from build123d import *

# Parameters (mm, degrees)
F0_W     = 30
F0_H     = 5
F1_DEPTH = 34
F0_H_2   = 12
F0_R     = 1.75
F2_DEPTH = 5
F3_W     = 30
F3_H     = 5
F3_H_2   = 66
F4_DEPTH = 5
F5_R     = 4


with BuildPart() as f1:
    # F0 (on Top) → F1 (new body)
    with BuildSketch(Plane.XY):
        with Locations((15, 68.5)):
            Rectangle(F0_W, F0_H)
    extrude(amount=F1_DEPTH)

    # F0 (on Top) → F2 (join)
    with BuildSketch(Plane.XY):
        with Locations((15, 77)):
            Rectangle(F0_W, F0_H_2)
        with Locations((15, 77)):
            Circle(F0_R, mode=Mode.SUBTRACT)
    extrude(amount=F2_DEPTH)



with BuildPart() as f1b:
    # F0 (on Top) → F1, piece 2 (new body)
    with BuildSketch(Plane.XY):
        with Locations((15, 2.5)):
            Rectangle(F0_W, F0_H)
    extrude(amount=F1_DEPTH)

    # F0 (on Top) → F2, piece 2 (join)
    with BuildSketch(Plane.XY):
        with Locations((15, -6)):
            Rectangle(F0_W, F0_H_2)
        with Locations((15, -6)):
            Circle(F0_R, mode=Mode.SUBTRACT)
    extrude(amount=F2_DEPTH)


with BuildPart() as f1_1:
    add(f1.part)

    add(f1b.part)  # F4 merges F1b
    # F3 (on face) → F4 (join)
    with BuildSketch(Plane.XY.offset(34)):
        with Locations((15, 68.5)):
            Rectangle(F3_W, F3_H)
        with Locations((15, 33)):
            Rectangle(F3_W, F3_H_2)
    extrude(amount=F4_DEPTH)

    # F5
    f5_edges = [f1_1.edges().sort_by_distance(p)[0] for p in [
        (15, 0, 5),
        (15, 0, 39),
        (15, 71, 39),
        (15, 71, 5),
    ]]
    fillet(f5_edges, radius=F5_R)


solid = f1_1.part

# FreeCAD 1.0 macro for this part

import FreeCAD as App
import Part
import Sketcher
from FreeCAD import Vector


def edges_at(feature, points):
    """Names of the edges that pass closest to the given points."""
    edges = feature.Shape.Edges
    near = lambda p: min(range(len(edges)), key=lambda i: edges[i].distToShape(Part.Vertex(*p))[0])
    return sorted({f"Edge{near(p) + 1}" for p in points})

doc = App.newDocument("Part")
params = doc.addObject("Spreadsheet::Sheet", "Params")
for row, (alias, value) in enumerate([
    ("sketch1_width", "30 mm"),
    ("sketch1_height", "5 mm"),
    ("pad1_length", "34 mm"),
    ("sketch2_diameter", "3.5 mm"),
    ("sketch2_width", "30 mm"),
    ("sketch2_height", "12 mm"),
    ("pad2_length", "5 mm"),
    ("sketch3_width", "30 mm"),
    ("sketch3_height", "5 mm"),
    ("pad3_length", "34 mm"),
    ("sketch4_diameter", "3.5 mm"),
    ("sketch4_width", "30 mm"),
    ("sketch4_height", "12 mm"),
    ("pad4_length", "5 mm"),
    ("sketch5_width", "30 mm"),
    ("sketch5_height", "71 mm"),
    ("pad5_length", "5 mm"),
    ("fillet_radius", "4 mm"),
], start=1):
    params.set(f"A{row}", alias)
    params.set(f"B{row}", "=" + value)
    params.setAlias(f"B{row}", alias)

body = doc.addObject("PartDesign::Body", "Body")

# Sketch on XY plane
sketch1 = body.newObject("Sketcher::SketchObject", "Sketch")
sketch1.AttachmentSupport = (doc.getObject("XY_Plane"), [""])
sketch1.MapMode = "FlatFace"
sketch1.addGeometry([
    Part.LineSegment(Vector(0, 71, 0), Vector(0, 66, 0)),
    Part.LineSegment(Vector(0, 66, 0), Vector(30, 66, 0)),
    Part.LineSegment(Vector(30, 66, 0), Vector(30, 71, 0)),
    Part.LineSegment(Vector(30, 71, 0), Vector(0, 71, 0)),
], False)
sketch1.addConstraint([
    Sketcher.Constraint("Coincident", 0, 2, 1, 1),
    Sketcher.Constraint("Coincident", 1, 2, 2, 1),
    Sketcher.Constraint("Coincident", 2, 2, 3, 1),
    Sketcher.Constraint("Coincident", 3, 2, 0, 1),
    Sketcher.Constraint("Vertical", 0),
    Sketcher.Constraint("Horizontal", 1),
    Sketcher.Constraint("Vertical", 2),
    Sketcher.Constraint("Horizontal", 3),
    Sketcher.Constraint("PointOnObject", 0, 2, -2),
    Sketcher.Constraint("DistanceX", 1, 1, 1, 2, 30.0),
    Sketcher.Constraint("DistanceY", 0, 2, 0, 1, 5.0),
    Sketcher.Constraint("DistanceY", -1, 1, 0, 2, 66.0),
])
sketch1.setExpression("Constraints[9]", "Params.sketch1_width")
sketch1.setExpression("Constraints[10]", "Params.sketch1_height")
pad1 = body.newObject("PartDesign::Pad", "Pad")
pad1.Profile = sketch1
pad1.setExpression("Length", "Params.pad1_length")

# Sketch on XY plane
sketch2 = body.newObject("Sketcher::SketchObject", "Sketch001")
sketch2.AttachmentSupport = (doc.getObject("XY_Plane"), [""])
sketch2.MapMode = "FlatFace"
sketch2.addGeometry([
    Part.LineSegment(Vector(0, 83, 0), Vector(0, 71, 0)),  # 0
    Part.LineSegment(Vector(0, 71, 0), Vector(30, 71, 0)),  # 1
    Part.LineSegment(Vector(30, 71, 0), Vector(30, 83, 0)),  # 2
    Part.LineSegment(Vector(30, 83, 0), Vector(0, 83, 0)),  # 3
    Part.Circle(Vector(15, 77, 0), Vector(0, 0, 1), 1.75),  # 4
], False)
sketch2.addConstraint([
    Sketcher.Constraint("Coincident", 0, 2, 1, 1),
    Sketcher.Constraint("Coincident", 1, 2, 2, 1),
    Sketcher.Constraint("Coincident", 2, 2, 3, 1),
    Sketcher.Constraint("Coincident", 3, 2, 0, 1),
    Sketcher.Constraint("Vertical", 0),
    Sketcher.Constraint("Horizontal", 1),
    Sketcher.Constraint("Vertical", 2),
    Sketcher.Constraint("Horizontal", 3),
    Sketcher.Constraint("PointOnObject", 0, 2, -2),
    Sketcher.Constraint("Diameter", 4, 3.5),
    Sketcher.Constraint("DistanceX", 1, 1, 1, 2, 30.0),
    Sketcher.Constraint("DistanceY", 0, 2, 0, 1, 12.0),
    Sketcher.Constraint("DistanceX", -1, 1, 4, 3, 15.0),
    Sketcher.Constraint("DistanceY", -1, 1, 4, 3, 77.0),
    Sketcher.Constraint("DistanceY", -1, 1, 0, 2, 71.0),
])
sketch2.setExpression("Constraints[9]", "Params.sketch2_diameter")
sketch2.setExpression("Constraints[10]", "Params.sketch2_width")
sketch2.setExpression("Constraints[11]", "Params.sketch2_height")
pad2 = body.newObject("PartDesign::Pad", "Pad001")
pad2.Profile = sketch2
pad2.setExpression("Length", "Params.pad2_length")
body2 = doc.addObject("PartDesign::Body", "Body001")

# Sketch on XY plane
sketch3 = body2.newObject("Sketcher::SketchObject", "Sketch002")
sketch3.AttachmentSupport = (doc.getObject("XY_Plane001"), [""])
sketch3.MapMode = "FlatFace"
sketch3.addGeometry([
    Part.LineSegment(Vector(0, 5, 0), Vector(0, 0, 0)),
    Part.LineSegment(Vector(0, 0, 0), Vector(30, 0, 0)),
    Part.LineSegment(Vector(30, 0, 0), Vector(30, 5, 0)),
    Part.LineSegment(Vector(30, 5, 0), Vector(0, 5, 0)),
], False)
sketch3.addConstraint([
    Sketcher.Constraint("Coincident", 0, 2, 1, 1),
    Sketcher.Constraint("Coincident", 1, 2, 2, 1),
    Sketcher.Constraint("Coincident", 2, 2, 3, 1),
    Sketcher.Constraint("Coincident", 3, 2, 0, 1),
    Sketcher.Constraint("Vertical", 0),
    Sketcher.Constraint("Horizontal", 1),
    Sketcher.Constraint("Vertical", 2),
    Sketcher.Constraint("Horizontal", 3),
    Sketcher.Constraint("Coincident", 0, 2, -1, 1),
    Sketcher.Constraint("DistanceX", 1, 1, 1, 2, 30.0),
    Sketcher.Constraint("DistanceY", 0, 2, 0, 1, 5.0),
])
sketch3.setExpression("Constraints[9]", "Params.sketch3_width")
sketch3.setExpression("Constraints[10]", "Params.sketch3_height")
pad3 = body2.newObject("PartDesign::Pad", "Pad002")
pad3.Profile = sketch3
pad3.setExpression("Length", "Params.pad3_length")

# Sketch on XY plane
sketch4 = body2.newObject("Sketcher::SketchObject", "Sketch003")
sketch4.AttachmentSupport = (doc.getObject("XY_Plane001"), [""])
sketch4.MapMode = "FlatFace"
sketch4.addGeometry([
    Part.LineSegment(Vector(0, 0, 0), Vector(0, -12, 0)),  # 0
    Part.LineSegment(Vector(0, -12, 0), Vector(30, -12, 0)),  # 1
    Part.LineSegment(Vector(30, -12, 0), Vector(30, 0, 0)),  # 2
    Part.LineSegment(Vector(30, 0, 0), Vector(0, 0, 0)),  # 3
    Part.Circle(Vector(15, -6, 0), Vector(0, 0, 1), 1.75),  # 4
], False)
sketch4.addConstraint([
    Sketcher.Constraint("Coincident", 0, 2, 1, 1),
    Sketcher.Constraint("Coincident", 1, 2, 2, 1),
    Sketcher.Constraint("Coincident", 2, 2, 3, 1),
    Sketcher.Constraint("Coincident", 3, 2, 0, 1),
    Sketcher.Constraint("Vertical", 0),
    Sketcher.Constraint("Horizontal", 1),
    Sketcher.Constraint("Vertical", 2),
    Sketcher.Constraint("Horizontal", 3),
    Sketcher.Constraint("Coincident", 3, 2, -1, 1),
    Sketcher.Constraint("Diameter", 4, 3.5),
    Sketcher.Constraint("DistanceX", 1, 1, 1, 2, 30.0),
    Sketcher.Constraint("DistanceY", 0, 2, 0, 1, 12.0),
    Sketcher.Constraint("DistanceX", -1, 1, 4, 3, 15.0),
    Sketcher.Constraint("DistanceY", 4, 3, -1, 1, 6.0),
])
sketch4.setExpression("Constraints[9]", "Params.sketch4_diameter")
sketch4.setExpression("Constraints[10]", "Params.sketch4_width")
sketch4.setExpression("Constraints[11]", "Params.sketch4_height")
pad4 = body2.newObject("PartDesign::Pad", "Pad003")
pad4.Profile = sketch4
pad4.setExpression("Length", "Params.pad4_length")
body.AllowCompound = True
doc.recompute()

boolean = body.newObject("PartDesign::Boolean", "Boolean")
boolean.Type = "Fuse"
boolean.addObjects([body2])

# Sketch on XY plane
sketch5 = body.newObject("Sketcher::SketchObject", "Sketch004")
sketch5.AttachmentSupport = (doc.getObject("XY_Plane"), [""])
sketch5.MapMode = "FlatFace"
sketch5.AttachmentOffset = App.Placement(Vector(0, 0, 34), App.Rotation())
sketch5.addGeometry([
    Part.LineSegment(Vector(0, 71, 0), Vector(0, 0, 0)),
    Part.LineSegment(Vector(0, 0, 0), Vector(30, 0, 0)),
    Part.LineSegment(Vector(30, 0, 0), Vector(30, 71, 0)),
    Part.LineSegment(Vector(30, 71, 0), Vector(0, 71, 0)),
], False)
sketch5.addConstraint([
    Sketcher.Constraint("Coincident", 0, 2, 1, 1),
    Sketcher.Constraint("Coincident", 1, 2, 2, 1),
    Sketcher.Constraint("Coincident", 2, 2, 3, 1),
    Sketcher.Constraint("Coincident", 3, 2, 0, 1),
    Sketcher.Constraint("Vertical", 0),
    Sketcher.Constraint("Horizontal", 1),
    Sketcher.Constraint("Vertical", 2),
    Sketcher.Constraint("Horizontal", 3),
    Sketcher.Constraint("Coincident", 0, 2, -1, 1),
    Sketcher.Constraint("DistanceX", 1, 1, 1, 2, 30.0),
    Sketcher.Constraint("DistanceY", 0, 2, 0, 1, 71.0),
])
sketch5.setExpression("Constraints[9]", "Params.sketch5_width")
sketch5.setExpression("Constraints[10]", "Params.sketch5_height")
pad5 = body.newObject("PartDesign::Pad", "Pad004")
pad5.Profile = sketch5
pad5.setExpression("Length", "Params.pad5_length")
doc.recompute()

fillet = body.newObject("PartDesign::Fillet", "Fillet")
fillet.Base = (pad5, edges_at(pad5, [
    (15, 0, 5),
    (15, 0, 39),
    (15, 71, 39),
    (15, 71, 5),
]))
fillet.setExpression("Radius", "Params.fillet_radius")

doc.recompute()
